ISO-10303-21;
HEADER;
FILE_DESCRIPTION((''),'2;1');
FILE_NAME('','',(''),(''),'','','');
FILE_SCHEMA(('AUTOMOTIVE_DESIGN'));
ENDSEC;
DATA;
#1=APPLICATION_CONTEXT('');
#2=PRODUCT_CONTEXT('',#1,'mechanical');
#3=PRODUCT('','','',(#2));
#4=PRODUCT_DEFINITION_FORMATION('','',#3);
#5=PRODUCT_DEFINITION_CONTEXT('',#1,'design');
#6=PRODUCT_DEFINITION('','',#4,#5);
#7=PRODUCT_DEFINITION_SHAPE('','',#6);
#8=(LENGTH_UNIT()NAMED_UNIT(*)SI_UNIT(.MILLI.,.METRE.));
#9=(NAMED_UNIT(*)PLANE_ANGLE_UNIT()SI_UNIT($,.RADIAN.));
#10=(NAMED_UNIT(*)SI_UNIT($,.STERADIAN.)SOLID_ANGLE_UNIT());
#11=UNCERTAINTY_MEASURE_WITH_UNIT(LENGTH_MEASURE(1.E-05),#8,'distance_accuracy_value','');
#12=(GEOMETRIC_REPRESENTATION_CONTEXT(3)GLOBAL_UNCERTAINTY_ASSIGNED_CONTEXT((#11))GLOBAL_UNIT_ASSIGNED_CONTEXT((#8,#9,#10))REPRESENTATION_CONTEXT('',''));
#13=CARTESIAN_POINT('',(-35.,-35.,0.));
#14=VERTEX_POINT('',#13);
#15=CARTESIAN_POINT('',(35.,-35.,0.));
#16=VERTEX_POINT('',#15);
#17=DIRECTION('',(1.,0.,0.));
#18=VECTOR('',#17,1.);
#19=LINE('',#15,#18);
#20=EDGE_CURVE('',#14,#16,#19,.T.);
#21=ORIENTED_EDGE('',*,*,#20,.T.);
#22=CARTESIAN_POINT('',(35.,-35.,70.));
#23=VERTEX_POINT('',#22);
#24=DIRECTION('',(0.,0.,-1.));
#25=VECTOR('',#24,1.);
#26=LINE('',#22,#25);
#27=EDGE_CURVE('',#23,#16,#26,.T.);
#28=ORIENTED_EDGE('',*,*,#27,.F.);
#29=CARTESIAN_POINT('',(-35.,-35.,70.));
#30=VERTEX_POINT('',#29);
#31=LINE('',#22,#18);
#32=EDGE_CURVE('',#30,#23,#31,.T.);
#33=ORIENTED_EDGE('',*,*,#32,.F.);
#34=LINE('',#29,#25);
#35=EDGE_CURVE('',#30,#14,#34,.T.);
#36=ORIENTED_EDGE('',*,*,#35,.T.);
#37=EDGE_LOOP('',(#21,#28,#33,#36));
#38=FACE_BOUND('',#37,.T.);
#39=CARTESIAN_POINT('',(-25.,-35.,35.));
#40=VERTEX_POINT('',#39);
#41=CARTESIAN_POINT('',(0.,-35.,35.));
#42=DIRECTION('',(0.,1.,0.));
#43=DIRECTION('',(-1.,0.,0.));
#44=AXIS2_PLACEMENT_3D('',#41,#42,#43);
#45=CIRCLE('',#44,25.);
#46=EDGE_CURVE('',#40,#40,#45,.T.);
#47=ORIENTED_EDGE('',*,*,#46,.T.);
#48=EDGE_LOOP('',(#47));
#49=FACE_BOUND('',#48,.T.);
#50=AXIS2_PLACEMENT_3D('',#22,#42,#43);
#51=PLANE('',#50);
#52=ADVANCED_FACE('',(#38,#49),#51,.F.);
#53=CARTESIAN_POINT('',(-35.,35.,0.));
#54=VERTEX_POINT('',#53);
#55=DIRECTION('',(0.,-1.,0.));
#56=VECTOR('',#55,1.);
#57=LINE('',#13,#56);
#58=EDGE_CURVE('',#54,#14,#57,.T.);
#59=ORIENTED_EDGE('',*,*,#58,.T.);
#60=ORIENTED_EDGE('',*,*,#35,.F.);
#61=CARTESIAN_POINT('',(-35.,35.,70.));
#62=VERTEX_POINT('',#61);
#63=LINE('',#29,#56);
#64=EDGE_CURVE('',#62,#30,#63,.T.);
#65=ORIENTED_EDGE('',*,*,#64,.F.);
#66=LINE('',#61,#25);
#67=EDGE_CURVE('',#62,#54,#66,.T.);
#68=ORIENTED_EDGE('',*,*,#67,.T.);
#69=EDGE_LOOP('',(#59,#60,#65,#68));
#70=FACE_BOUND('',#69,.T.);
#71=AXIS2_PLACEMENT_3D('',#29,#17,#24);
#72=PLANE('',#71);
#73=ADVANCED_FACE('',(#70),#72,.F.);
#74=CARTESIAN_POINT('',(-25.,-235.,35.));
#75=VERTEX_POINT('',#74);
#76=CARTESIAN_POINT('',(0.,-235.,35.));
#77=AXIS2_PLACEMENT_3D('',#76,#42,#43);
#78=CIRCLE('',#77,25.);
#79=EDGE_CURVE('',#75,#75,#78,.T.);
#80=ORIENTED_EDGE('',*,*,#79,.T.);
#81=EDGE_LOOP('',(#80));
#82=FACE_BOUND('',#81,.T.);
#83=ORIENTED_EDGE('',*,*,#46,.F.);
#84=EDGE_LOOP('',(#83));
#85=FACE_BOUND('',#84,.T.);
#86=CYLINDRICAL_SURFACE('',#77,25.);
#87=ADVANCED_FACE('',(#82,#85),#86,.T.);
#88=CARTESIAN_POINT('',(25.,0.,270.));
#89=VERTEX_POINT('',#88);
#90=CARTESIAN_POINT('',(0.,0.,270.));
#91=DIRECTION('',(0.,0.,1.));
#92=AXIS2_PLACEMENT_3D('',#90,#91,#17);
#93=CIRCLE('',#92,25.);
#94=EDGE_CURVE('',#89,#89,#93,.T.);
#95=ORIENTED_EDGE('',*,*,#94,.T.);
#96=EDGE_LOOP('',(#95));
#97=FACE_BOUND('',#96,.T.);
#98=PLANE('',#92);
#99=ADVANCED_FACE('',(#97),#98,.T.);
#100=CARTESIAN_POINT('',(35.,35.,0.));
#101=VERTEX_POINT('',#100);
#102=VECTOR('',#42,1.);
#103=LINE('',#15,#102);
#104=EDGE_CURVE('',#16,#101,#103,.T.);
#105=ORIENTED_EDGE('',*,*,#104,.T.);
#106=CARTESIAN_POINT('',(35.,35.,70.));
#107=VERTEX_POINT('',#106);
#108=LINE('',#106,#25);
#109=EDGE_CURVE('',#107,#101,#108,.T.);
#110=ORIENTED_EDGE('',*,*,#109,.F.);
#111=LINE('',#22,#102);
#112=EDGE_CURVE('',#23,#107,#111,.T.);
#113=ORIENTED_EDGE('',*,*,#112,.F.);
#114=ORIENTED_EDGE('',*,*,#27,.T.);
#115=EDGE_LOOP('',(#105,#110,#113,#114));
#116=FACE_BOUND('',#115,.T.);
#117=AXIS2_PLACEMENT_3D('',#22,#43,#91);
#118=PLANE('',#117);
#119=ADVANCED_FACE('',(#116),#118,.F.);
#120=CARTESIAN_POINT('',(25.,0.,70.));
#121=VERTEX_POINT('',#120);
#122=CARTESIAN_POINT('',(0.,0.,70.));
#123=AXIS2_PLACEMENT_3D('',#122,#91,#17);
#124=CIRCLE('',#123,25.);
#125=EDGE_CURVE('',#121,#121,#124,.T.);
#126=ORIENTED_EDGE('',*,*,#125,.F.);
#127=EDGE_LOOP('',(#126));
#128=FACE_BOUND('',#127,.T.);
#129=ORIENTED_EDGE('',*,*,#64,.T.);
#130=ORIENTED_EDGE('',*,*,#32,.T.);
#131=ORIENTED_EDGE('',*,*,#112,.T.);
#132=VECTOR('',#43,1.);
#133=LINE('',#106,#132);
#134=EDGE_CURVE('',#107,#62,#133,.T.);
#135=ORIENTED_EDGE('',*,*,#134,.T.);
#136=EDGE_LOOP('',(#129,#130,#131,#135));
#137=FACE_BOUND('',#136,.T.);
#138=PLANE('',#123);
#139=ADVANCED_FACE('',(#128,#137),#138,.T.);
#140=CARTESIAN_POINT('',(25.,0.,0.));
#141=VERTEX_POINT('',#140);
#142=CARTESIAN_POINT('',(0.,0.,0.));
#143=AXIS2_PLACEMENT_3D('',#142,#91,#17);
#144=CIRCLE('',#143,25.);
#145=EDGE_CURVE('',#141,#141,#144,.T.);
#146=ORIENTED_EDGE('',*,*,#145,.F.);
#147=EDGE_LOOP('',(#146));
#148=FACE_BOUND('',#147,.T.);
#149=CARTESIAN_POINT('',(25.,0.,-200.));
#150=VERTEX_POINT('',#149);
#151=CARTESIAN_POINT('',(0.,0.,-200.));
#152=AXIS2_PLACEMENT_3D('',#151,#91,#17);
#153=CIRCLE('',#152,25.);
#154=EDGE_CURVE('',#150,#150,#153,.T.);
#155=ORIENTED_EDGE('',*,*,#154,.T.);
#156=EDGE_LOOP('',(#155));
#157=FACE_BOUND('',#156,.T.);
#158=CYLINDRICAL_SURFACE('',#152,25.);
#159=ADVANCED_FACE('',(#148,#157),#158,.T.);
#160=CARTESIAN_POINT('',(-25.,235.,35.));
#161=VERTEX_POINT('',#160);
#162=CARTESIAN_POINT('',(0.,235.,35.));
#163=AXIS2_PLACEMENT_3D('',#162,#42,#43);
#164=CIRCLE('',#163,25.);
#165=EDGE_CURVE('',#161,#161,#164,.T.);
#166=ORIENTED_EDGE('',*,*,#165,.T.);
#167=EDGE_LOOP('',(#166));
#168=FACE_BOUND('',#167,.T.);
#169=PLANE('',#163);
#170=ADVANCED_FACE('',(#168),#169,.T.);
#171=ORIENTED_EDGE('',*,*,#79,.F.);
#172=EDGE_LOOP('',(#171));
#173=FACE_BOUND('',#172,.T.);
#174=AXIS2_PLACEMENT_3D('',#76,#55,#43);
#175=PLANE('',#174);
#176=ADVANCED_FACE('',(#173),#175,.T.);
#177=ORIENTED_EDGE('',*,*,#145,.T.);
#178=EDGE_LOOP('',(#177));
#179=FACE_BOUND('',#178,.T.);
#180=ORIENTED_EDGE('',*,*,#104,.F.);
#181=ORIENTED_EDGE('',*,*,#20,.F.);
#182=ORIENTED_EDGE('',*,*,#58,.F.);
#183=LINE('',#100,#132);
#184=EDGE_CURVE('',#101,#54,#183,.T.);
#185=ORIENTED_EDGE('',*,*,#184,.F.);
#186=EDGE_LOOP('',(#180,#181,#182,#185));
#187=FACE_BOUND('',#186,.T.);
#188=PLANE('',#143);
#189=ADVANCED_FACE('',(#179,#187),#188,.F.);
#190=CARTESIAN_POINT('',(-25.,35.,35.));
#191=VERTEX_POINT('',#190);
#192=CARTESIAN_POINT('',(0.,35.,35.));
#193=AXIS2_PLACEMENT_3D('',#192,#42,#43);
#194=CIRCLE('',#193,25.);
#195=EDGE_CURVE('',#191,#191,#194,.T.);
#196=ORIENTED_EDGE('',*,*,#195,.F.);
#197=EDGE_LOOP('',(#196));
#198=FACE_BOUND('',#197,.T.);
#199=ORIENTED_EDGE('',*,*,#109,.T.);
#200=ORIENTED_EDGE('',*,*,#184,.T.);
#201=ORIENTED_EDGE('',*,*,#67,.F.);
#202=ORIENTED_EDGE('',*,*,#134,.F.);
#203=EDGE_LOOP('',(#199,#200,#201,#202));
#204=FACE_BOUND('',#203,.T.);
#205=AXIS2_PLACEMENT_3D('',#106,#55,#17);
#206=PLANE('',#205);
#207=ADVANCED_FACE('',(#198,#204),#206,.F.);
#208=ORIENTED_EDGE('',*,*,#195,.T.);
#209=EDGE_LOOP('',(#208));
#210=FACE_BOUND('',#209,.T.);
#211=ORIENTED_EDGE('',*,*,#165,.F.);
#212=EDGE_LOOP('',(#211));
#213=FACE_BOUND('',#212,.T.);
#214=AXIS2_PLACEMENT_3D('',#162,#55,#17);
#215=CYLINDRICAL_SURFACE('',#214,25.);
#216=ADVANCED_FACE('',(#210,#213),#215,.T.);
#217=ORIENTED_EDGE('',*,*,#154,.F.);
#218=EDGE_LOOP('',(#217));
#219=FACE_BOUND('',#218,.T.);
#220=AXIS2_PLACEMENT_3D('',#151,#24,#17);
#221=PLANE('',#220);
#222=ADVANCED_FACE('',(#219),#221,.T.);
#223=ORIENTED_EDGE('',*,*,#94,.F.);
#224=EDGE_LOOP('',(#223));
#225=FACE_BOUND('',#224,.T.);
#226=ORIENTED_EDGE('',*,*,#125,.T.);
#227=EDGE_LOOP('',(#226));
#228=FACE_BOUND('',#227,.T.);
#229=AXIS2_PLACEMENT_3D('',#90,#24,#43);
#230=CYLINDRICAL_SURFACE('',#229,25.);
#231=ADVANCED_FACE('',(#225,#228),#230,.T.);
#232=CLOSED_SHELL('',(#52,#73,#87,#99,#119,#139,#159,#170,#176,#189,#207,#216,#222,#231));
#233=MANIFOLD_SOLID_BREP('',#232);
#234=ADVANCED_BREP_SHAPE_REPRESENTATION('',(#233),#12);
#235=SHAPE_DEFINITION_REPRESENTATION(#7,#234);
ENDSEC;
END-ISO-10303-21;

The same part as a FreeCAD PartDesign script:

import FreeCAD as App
import Part
import Sketcher

doc = App.newDocument("Part")
body = doc.addObject("PartDesign::Body", "Body")

sketch1 = body.newObject("Sketcher::SketchObject", "Sketch")
sketch1.AttachmentSupport = (doc.getObject("XY_Plane"), [""])
sketch1.MapMode = "FlatFace"
sketch1.addGeometry(Part.LineSegment(App.Vector(-35, 35, 0), App.Vector(-35, -35, 0)), False)
sketch1.addGeometry(Part.LineSegment(App.Vector(-35, -35, 0), App.Vector(35, -35, 0)), False)
sketch1.addGeometry(Part.LineSegment(App.Vector(35, -35, 0), App.Vector(35, 35, 0)), False)
sketch1.addGeometry(Part.LineSegment(App.Vector(35, 35, 0), App.Vector(-35, 35, 0)), False)
sketch1.addConstraint(Sketcher.Constraint("Coincident", 0, 2, 1, 1))
sketch1.addConstraint(Sketcher.Constraint("Coincident", 1, 2, 2, 1))
sketch1.addConstraint(Sketcher.Constraint("Coincident", 2, 2, 3, 1))
sketch1.addConstraint(Sketcher.Constraint("Coincident", 3, 2, 0, 1))
sketch1.addConstraint(Sketcher.Constraint("Vertical", 0))
sketch1.addConstraint(Sketcher.Constraint("Horizontal", 1))
sketch1.addConstraint(Sketcher.Constraint("Vertical", 2))
sketch1.addConstraint(Sketcher.Constraint("Horizontal", 3))
sketch1.addConstraint(Sketcher.Constraint("Symmetric", 0, 2, 2, 2, -1, 1))
sketch1.addConstraint(Sketcher.Constraint("Equal", 3, 0))
sketch1.addConstraint(Sketcher.Constraint("DistanceX", 1, 1, 1, 2, 70.0))
pad1 = body.newObject("PartDesign::Pad", "Pad")
pad1.Profile = sketch1
pad1.Length = 70

sketch2 = body.newObject("Sketcher::SketchObject", "Sketch001")
sketch2.AttachmentSupport = (doc.getObject("XY_Plane"), [""])
sketch2.MapMode = "FlatFace"
sketch2.AttachmentOffset = App.Placement(App.Vector(0, 0, 70), App.Rotation())
sketch2.addGeometry(Part.Circle(App.Vector(0, 0, 0), App.Vector(0, 0, 1), 25), False)
sketch2.addConstraint(Sketcher.Constraint("Coincident", 0, 3, -1, 1))
sketch2.addConstraint(Sketcher.Constraint("Diameter", 0, 50.0))
pad2 = body.newObject("PartDesign::Pad", "Pad001")
pad2.Profile = sketch2
pad2.Length = 200
doc.recompute()

datumplane = body.newObject("PartDesign::Plane", "DatumPlane")
datumplane.AttachmentSupport = (doc.getObject("XY_Plane"), [""])
datumplane.MapMode = "FlatFace"
datumplane.AttachmentOffset = App.Placement(App.Vector(0, 0, 35), App.Rotation())
mirrored = body.newObject("PartDesign::Mirrored", "Mirrored")
mirrored.Originals = [pad2]
mirrored.MirrorPlane = (datumplane, [""])
body.Tip = mirrored

sketch3 = body.newObject("Sketcher::SketchObject", "Sketch002")
sketch3.AttachmentSupport = (doc.getObject("XZ_Plane"), [""])
sketch3.MapMode = "FlatFace"
sketch3.AttachmentOffset = App.Placement(App.Vector(0, 0, -35), App.Rotation())
sketch3.addGeometry(Part.Circle(App.Vector(0, 35, 0), App.Vector(0, 0, 1), 25), False)
sketch3.addConstraint(Sketcher.Constraint("PointOnObject", 0, 3, -2))
sketch3.addConstraint(Sketcher.Constraint("Diameter", 0, 50.0))
sketch3.addConstraint(Sketcher.Constraint("DistanceY", -1, 1, 0, 3, 35.0))
pad3 = body.newObject("PartDesign::Pad", "Pad002")
pad3.Profile = sketch3
pad3.Length = 200
pad3.Reversed = True
doc.recompute()

mirrored2 = body.newObject("PartDesign::Mirrored", "Mirrored001")
mirrored2.Originals = [pad3]
mirrored2.MirrorPlane = (doc.getObject("XZ_Plane"), [""])
body.Tip = mirrored2

doc.recompute()
